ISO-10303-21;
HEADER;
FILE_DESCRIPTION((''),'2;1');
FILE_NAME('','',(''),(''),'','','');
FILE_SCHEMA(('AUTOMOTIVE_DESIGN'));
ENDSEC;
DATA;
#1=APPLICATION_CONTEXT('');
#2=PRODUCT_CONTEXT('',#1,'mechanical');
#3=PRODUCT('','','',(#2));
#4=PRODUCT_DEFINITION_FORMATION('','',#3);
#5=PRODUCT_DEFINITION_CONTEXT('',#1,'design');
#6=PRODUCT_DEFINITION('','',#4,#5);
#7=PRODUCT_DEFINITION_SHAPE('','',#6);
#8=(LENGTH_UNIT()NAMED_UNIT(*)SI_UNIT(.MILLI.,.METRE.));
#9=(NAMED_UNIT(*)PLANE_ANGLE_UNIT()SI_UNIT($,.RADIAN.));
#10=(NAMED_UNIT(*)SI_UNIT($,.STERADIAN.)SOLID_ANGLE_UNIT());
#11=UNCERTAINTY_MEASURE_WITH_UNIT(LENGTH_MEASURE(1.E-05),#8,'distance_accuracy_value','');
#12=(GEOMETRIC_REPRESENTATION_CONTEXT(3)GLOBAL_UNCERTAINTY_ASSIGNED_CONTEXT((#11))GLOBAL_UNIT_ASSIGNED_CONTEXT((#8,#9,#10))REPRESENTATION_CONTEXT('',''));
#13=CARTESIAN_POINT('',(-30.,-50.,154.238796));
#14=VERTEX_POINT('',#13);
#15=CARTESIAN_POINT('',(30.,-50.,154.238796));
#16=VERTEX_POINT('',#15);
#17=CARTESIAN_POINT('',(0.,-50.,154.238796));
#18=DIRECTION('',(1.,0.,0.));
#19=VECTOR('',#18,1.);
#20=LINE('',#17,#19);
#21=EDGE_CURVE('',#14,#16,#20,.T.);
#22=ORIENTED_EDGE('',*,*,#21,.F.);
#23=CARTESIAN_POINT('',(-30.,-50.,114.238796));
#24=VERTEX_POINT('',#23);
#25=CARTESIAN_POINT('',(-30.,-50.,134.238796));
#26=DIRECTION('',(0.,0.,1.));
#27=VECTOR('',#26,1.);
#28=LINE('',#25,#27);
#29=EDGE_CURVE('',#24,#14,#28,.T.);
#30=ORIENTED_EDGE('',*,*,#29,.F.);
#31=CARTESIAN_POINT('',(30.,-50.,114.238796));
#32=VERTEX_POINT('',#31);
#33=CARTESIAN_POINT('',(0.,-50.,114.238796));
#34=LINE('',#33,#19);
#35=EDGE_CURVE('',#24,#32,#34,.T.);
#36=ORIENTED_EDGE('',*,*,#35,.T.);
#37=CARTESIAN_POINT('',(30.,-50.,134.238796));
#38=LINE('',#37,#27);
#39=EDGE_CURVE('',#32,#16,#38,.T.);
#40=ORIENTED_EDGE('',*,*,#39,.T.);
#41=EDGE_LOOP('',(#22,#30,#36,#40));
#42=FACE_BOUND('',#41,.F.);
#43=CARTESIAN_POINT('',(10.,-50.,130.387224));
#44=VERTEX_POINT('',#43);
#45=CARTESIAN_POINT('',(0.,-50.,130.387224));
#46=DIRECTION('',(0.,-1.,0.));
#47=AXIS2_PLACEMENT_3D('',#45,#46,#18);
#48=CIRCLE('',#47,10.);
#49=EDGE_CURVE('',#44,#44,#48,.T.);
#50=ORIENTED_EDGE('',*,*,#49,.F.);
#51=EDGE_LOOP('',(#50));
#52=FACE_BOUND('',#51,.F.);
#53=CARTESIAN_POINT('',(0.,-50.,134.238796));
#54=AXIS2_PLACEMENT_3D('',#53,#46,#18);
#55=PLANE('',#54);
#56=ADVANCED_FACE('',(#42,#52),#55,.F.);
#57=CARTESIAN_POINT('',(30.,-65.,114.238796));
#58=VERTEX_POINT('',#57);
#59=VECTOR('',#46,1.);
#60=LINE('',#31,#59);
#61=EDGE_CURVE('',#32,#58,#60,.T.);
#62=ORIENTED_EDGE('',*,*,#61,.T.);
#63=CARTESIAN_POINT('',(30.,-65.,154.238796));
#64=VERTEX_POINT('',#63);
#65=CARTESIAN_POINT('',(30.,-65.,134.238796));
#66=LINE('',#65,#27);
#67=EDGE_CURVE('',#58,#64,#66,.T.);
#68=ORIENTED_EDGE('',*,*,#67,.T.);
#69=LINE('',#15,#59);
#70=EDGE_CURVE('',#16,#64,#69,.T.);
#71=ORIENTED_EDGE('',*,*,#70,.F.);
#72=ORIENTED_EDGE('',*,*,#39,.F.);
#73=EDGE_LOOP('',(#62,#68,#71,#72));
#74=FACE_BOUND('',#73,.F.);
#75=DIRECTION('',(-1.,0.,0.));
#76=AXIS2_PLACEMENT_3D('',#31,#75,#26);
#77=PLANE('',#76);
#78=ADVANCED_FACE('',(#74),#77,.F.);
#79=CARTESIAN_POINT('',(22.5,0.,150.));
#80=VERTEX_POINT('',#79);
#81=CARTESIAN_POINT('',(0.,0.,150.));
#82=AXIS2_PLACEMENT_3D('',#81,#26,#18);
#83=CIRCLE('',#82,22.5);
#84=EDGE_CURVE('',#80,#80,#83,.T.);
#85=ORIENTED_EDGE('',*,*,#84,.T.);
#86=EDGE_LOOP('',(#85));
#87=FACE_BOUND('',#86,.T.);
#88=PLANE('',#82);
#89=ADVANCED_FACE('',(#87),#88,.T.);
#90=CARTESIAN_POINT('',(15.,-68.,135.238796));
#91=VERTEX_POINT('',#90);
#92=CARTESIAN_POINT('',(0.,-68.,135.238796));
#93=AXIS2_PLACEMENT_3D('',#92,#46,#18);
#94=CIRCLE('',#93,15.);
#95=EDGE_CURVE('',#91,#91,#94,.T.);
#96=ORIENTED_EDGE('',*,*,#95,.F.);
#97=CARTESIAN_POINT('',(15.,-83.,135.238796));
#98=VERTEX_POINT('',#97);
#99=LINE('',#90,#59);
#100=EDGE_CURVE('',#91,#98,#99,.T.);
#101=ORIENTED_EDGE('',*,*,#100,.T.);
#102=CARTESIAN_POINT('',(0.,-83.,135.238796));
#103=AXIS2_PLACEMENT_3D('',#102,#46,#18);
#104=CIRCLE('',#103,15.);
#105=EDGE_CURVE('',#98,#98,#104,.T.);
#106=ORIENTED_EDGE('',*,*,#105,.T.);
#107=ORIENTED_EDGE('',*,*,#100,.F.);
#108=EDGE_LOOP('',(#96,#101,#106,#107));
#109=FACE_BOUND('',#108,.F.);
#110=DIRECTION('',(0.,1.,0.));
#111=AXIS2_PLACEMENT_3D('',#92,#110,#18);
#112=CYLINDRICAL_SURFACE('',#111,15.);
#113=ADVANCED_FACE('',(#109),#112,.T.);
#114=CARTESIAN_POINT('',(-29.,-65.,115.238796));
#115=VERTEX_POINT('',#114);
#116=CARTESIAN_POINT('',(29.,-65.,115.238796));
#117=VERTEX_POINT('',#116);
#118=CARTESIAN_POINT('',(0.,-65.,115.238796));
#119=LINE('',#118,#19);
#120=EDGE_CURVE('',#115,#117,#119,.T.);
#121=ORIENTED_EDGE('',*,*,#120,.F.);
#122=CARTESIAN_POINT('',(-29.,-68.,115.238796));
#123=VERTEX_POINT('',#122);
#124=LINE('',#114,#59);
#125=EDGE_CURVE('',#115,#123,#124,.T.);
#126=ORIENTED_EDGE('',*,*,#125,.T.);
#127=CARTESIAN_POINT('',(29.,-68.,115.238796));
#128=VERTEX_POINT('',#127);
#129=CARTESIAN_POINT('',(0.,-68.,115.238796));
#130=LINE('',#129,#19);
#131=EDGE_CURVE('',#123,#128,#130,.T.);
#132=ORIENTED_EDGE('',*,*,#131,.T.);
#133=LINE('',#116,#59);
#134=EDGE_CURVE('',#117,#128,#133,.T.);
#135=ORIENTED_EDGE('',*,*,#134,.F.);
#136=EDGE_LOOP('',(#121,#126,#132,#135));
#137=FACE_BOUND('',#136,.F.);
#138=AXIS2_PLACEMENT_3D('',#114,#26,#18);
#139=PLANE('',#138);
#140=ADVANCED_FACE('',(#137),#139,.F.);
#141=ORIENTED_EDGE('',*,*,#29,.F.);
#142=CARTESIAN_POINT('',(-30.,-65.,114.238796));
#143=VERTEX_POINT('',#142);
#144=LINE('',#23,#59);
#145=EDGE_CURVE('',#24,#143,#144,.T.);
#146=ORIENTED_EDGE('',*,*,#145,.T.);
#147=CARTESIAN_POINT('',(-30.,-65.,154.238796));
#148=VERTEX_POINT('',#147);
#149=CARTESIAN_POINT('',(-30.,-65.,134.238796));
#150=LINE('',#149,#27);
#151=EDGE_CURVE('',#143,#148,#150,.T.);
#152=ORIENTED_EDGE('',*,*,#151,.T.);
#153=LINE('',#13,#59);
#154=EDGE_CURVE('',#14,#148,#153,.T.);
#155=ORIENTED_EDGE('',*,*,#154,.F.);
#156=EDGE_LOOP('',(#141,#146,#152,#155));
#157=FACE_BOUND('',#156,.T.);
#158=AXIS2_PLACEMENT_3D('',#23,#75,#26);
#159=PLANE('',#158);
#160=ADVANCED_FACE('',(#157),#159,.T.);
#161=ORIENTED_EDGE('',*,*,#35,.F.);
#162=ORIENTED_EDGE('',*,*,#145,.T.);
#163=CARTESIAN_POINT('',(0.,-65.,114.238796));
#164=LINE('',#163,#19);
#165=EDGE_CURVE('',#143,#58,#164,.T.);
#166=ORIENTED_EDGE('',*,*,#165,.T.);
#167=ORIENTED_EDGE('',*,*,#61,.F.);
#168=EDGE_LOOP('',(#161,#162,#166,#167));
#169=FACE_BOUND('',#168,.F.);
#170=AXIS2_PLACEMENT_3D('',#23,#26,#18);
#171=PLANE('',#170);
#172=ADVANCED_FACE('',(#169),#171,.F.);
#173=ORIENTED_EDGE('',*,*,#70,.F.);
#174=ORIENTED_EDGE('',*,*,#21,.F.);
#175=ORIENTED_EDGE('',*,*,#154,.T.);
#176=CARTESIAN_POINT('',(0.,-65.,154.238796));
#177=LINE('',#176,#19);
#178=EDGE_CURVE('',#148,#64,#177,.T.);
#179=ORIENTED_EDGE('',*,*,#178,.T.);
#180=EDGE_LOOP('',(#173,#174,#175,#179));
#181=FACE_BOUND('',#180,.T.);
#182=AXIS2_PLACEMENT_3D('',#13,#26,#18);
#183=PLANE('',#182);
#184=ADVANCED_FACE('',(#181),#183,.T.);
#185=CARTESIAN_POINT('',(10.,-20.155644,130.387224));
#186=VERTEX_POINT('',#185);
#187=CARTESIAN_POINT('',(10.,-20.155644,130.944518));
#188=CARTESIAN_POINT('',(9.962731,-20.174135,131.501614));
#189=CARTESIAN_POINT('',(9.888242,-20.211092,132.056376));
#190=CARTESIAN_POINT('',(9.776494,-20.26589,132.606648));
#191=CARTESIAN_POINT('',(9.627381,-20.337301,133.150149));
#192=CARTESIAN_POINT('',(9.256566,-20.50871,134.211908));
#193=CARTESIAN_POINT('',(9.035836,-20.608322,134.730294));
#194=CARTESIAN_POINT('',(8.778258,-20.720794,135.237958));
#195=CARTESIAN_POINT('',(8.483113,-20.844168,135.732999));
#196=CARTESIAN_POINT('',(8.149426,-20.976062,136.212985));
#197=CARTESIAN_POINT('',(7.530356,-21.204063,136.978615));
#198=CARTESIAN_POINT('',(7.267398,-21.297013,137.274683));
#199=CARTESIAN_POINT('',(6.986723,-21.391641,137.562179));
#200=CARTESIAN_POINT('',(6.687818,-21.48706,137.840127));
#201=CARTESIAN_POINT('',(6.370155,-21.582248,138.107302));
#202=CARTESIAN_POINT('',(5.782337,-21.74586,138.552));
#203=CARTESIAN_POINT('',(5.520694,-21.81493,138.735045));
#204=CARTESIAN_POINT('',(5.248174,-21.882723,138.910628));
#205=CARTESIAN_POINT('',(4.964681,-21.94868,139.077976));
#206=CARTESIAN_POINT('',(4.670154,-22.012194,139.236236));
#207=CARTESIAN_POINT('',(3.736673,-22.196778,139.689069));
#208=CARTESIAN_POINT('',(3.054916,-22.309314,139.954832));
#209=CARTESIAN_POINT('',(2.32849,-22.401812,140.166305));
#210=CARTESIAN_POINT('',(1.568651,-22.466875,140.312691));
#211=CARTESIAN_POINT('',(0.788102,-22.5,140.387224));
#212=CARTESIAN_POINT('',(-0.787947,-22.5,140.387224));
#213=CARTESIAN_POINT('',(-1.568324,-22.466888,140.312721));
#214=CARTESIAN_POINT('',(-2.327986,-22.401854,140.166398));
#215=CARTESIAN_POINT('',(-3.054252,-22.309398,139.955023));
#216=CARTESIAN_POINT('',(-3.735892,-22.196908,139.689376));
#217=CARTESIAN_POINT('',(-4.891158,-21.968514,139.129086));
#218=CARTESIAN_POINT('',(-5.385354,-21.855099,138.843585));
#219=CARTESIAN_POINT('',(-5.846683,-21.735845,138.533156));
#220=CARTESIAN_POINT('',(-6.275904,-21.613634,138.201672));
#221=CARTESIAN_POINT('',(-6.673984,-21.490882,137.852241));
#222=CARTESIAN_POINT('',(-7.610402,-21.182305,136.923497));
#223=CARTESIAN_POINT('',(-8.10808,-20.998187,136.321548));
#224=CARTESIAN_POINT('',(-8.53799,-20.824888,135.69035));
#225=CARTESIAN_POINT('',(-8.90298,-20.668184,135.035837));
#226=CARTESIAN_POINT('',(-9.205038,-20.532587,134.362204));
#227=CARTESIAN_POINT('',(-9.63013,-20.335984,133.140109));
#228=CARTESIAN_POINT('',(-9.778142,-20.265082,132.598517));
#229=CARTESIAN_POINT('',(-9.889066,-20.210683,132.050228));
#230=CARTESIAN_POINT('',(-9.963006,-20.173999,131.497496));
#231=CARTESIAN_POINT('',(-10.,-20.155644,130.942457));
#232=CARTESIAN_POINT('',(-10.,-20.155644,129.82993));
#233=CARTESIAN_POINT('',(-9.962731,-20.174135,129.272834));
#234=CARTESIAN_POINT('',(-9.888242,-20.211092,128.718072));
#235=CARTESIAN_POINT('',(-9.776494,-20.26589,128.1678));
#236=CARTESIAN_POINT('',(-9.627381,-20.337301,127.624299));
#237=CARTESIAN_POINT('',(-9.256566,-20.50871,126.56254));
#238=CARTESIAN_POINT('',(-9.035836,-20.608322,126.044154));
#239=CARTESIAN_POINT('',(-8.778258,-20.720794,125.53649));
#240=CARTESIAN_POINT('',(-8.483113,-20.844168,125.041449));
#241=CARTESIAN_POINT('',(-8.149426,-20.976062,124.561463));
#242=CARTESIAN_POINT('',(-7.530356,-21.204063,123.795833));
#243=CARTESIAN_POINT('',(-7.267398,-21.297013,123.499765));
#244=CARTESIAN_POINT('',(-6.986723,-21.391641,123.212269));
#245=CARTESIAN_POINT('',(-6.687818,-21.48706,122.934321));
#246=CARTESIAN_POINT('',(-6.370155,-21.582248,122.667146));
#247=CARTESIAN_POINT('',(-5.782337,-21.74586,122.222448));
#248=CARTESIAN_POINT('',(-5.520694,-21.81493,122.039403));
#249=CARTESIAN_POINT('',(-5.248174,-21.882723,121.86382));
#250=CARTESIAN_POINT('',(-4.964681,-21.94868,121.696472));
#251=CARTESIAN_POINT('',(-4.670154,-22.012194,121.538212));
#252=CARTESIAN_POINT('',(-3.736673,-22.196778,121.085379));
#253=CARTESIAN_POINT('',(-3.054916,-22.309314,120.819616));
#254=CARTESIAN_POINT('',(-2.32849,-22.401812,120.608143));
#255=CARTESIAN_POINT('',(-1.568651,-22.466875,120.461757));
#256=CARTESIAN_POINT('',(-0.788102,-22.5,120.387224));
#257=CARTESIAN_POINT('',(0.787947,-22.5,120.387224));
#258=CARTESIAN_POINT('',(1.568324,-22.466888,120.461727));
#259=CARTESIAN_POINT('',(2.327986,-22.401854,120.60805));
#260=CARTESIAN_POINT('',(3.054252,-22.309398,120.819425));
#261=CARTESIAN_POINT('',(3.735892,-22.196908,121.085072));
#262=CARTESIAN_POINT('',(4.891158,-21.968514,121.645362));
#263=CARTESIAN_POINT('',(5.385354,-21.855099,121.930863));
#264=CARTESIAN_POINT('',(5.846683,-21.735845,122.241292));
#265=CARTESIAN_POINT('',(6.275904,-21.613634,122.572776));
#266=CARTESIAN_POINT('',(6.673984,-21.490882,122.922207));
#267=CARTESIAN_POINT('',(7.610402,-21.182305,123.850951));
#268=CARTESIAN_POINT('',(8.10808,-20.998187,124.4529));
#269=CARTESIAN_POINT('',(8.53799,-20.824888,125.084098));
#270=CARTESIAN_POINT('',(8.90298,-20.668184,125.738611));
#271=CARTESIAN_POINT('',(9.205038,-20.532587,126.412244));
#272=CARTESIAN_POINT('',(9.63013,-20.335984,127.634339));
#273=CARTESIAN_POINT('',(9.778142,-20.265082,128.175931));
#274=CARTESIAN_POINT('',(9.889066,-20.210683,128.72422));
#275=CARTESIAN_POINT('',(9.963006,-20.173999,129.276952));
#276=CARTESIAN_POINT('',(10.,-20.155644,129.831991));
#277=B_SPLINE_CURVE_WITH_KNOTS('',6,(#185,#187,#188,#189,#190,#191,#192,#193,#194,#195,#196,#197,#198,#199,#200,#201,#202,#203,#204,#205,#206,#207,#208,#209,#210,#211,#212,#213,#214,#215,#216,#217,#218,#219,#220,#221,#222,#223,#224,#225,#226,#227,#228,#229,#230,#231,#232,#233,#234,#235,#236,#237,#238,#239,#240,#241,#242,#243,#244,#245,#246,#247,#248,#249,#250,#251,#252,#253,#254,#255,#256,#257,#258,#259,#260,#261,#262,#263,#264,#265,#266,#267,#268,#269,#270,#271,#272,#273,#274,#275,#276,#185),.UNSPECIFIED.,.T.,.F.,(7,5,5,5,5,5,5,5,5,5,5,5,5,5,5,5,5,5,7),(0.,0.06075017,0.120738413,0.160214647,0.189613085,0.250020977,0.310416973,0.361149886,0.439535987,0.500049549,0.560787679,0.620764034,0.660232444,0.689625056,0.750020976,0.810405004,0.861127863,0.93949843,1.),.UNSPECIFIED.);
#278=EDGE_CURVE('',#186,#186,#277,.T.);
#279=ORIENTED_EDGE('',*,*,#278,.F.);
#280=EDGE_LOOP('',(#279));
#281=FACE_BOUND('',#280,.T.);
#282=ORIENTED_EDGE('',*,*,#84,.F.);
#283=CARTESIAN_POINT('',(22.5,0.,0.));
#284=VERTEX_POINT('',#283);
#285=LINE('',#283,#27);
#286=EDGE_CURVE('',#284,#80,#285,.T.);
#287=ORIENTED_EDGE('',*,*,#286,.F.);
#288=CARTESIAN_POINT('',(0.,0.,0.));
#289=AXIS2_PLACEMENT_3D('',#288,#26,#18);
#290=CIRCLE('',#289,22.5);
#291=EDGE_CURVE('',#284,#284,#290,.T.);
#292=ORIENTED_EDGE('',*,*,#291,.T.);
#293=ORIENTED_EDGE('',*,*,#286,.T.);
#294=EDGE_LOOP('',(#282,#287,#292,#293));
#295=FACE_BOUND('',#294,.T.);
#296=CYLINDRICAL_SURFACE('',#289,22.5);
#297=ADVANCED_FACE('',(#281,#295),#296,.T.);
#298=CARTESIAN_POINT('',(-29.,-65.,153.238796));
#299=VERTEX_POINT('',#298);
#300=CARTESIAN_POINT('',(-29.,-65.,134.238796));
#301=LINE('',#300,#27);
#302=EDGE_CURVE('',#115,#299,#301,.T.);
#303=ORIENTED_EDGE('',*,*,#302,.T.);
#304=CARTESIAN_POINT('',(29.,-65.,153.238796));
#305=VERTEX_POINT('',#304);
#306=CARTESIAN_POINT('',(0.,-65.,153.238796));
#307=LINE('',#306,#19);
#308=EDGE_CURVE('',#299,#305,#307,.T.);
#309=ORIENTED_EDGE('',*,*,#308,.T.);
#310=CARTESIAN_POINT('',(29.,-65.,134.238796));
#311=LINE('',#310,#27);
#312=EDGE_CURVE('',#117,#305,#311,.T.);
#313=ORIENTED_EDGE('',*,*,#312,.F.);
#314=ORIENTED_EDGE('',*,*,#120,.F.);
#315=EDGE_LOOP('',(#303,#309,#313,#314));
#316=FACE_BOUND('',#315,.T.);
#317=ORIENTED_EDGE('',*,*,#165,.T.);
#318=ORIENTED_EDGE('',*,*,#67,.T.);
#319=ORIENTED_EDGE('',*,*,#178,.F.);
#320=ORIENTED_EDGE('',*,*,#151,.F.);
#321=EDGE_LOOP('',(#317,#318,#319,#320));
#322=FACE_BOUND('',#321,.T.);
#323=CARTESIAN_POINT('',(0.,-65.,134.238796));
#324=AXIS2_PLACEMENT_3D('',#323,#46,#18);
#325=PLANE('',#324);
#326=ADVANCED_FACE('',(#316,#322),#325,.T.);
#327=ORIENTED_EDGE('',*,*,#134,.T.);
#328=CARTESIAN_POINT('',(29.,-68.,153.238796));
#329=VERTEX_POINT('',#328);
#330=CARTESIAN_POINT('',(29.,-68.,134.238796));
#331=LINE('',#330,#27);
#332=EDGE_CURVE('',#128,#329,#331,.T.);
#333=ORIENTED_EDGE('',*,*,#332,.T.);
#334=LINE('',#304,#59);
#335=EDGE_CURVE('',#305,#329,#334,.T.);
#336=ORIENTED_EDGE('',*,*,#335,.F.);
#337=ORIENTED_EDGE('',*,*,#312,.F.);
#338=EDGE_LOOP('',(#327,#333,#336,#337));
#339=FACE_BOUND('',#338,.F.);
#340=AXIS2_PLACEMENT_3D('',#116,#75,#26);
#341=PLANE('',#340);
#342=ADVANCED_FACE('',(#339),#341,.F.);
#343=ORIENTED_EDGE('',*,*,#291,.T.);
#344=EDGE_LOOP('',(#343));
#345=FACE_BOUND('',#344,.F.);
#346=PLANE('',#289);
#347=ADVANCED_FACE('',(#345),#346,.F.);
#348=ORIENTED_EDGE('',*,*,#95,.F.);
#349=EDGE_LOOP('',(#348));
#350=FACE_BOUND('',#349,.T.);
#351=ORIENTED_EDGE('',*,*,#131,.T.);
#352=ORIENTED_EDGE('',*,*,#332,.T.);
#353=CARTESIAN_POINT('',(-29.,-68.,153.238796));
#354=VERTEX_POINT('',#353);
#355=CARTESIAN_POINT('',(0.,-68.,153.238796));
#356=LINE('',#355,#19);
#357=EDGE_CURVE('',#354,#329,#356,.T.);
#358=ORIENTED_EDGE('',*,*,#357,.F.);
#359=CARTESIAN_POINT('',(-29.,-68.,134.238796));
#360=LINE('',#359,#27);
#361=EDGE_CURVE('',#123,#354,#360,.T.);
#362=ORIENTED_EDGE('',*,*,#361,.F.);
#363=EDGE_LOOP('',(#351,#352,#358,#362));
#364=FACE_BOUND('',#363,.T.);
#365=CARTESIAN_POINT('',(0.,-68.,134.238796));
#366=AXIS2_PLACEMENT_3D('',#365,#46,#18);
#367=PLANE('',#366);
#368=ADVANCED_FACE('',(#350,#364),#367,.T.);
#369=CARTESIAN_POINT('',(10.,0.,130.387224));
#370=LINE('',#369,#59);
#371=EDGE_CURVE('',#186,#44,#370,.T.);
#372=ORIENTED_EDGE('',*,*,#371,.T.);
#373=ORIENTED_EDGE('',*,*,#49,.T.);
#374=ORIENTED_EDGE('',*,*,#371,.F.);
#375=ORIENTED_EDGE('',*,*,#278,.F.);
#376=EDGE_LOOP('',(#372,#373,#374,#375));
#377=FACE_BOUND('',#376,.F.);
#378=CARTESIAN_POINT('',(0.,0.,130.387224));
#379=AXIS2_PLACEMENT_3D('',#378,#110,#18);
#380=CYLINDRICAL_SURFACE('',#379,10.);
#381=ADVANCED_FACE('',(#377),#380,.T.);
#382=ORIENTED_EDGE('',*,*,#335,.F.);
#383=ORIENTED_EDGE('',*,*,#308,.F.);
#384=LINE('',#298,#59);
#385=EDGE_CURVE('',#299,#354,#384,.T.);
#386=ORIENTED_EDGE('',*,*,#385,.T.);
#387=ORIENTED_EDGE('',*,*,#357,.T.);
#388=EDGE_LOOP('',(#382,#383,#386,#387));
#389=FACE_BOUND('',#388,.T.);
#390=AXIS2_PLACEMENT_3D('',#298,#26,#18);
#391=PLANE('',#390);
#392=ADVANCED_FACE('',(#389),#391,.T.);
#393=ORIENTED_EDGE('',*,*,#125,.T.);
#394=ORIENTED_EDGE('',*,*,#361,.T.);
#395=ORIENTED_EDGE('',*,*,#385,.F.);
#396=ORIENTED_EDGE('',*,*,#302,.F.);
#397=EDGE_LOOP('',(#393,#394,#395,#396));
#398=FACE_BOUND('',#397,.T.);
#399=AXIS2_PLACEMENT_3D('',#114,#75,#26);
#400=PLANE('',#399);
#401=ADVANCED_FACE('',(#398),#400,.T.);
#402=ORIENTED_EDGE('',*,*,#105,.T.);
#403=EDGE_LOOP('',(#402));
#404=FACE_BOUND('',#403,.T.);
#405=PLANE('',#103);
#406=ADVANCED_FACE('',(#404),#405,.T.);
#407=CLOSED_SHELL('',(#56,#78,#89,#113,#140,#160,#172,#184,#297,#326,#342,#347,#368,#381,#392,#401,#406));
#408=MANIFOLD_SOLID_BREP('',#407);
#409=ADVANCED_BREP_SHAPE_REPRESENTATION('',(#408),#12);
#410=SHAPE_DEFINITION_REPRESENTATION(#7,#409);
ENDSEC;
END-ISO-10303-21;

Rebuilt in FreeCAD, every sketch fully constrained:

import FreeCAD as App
import Part
import Sketcher

V = App.Vector
Q = App.Units.Quantity


def add_polygon(sketch, points):
    """Adds a closed chain of lines whose ends are joined by coincident constraints."""
    first, n = sketch.GeometryCount, len(points)
    for a, b in zip(points, points[1:] + points[:1]):
        sketch.addGeometry(Part.LineSegment(App.Vector(*a, 0), App.Vector(*b, 0)), False)
    for i in range(n):
        sketch.addConstraint(Sketcher.Constraint("Coincident", first + i, 2, first + (i + 1) % n, 1))

doc = App.newDocument("Part")
body = doc.addObject("PartDesign::Body", "Body")

sketch1 = body.newObject("Sketcher::SketchObject", "Sketch")
sketch1.AttachmentSupport = (doc.getObject("XZ_Plane"), [""])
sketch1.MapMode = "FlatFace"
sketch1.addGeometry(Part.Circle(V(0, 130, 0), V(0, 0, 1), 10), False)
sketch1.addConstraint(Sketcher.Constraint("PointOnObject", 0, 3, -2))
sketch1.addConstraint(Sketcher.Constraint("Diameter", 0, Q("20 mm")))
sketch1.addConstraint(Sketcher.Constraint("DistanceY", -1, 1, 0, 3, Q("130.387224 mm")))
pad1 = body.newObject("PartDesign::Pad", "Pad")
pad1.Profile = sketch1
pad1.Length = 50

sketch2 = body.newObject("Sketcher::SketchObject", "Sketch001")
sketch2.AttachmentSupport = (doc.getObject("XZ_Plane"), [""])
sketch2.MapMode = "FlatFace"
sketch2.AttachmentOffset = App.Placement(V(0, 0, 50), App.Rotation())
add_polygon(sketch2, [(-30, 154), (-30, 114), (30, 114), (30, 154)])
sketch2.addConstraint(Sketcher.Constraint("Vertical", 0))
sketch2.addConstraint(Sketcher.Constraint("Horizontal", 1))
sketch2.addConstraint(Sketcher.Constraint("Vertical", 2))
sketch2.addConstraint(Sketcher.Constraint("Horizontal", 3))
sketch2.addConstraint(Sketcher.Constraint("DistanceX", 1, 1, 1, 2, Q("60 mm")))
sketch2.addConstraint(Sketcher.Constraint("DistanceY", 0, 2, 0, 1, Q("40 mm")))
sketch2.addConstraint(Sketcher.Constraint("DistanceX", 0, 2, -1, 1, Q("30 mm")))
sketch2.addConstraint(Sketcher.Constraint("DistanceY", -1, 1, 0, 2, Q("114.238796 mm")))
pad2 = body.newObject("PartDesign::Pad", "Pad001")
pad2.Profile = sketch2
pad2.Length = 15

sketch3 = body.newObject("Sketcher::SketchObject", "Sketch002")
sketch3.AttachmentSupport = (doc.getObject("XY_Plane"), [""])
sketch3.MapMode = "FlatFace"
sketch3.addGeometry(Part.Circle(V(0, 0, 0), V(0, 0, 1), 22), False)
sketch3.addConstraint(Sketcher.Constraint("Coincident", 0, 3, -1, 1))
sketch3.addConstraint(Sketcher.Constraint("Diameter", 0, Q("45 mm")))

sketch4 = body.newObject("Sketcher::SketchObject", "Sketch003")
sketch4.AttachmentSupport = (doc.getObject("XZ_Plane"), [""])
sketch4.MapMode = "FlatFace"
sketch4.addGeometry(Part.LineSegment(V(0, 0, 0), V(0, 150, 0)), False)
sketch4.addConstraint(Sketcher.Constraint("Vertical", 0))
sketch4.addConstraint(Sketcher.Constraint("Coincident", 0, 1, -1, 1))
sketch4.addConstraint(Sketcher.Constraint("DistanceY", 0, 1, 0, 2, Q("150 mm")))
doc.recompute()

additivepipe = body.newObject("PartDesign::AdditivePipe", "AdditivePipe")
additivepipe.Profile = sketch3
additivepipe.Spine = (sketch4, ["Edge1"])

sketch5 = body.newObject("Sketcher::SketchObject", "Sketch004")
sketch5.AttachmentSupport = (doc.getObject("XZ_Plane"), [""])
sketch5.MapMode = "FlatFace"
sketch5.AttachmentOffset = App.Placement(V(0, 0, 65), App.Rotation())
add_polygon(sketch5, [(-29, 153), (-29, 115), (29, 115), (29, 153)])
sketch5.addConstraint(Sketcher.Constraint("Vertical", 0))
sketch5.addConstraint(Sketcher.Constraint("Horizontal", 1))
sketch5.addConstraint(Sketcher.Constraint("Vertical", 2))
sketch5.addConstraint(Sketcher.Constraint("Horizontal", 3))
sketch5.addConstraint(Sketcher.Constraint("DistanceX", 1, 1, 1, 2, Q("58 mm")))
sketch5.addConstraint(Sketcher.Constraint("DistanceY", 0, 2, 0, 1, Q("38 mm")))
sketch5.addConstraint(Sketcher.Constraint("DistanceX", 0, 2, -1, 1, Q("29 mm")))
sketch5.addConstraint(Sketcher.Constraint("DistanceY", -1, 1, 0, 2, Q("115.238796 mm")))
pad3 = body.newObject("PartDesign::Pad", "Pad002")
pad3.Profile = sketch5
pad3.Length = 3

sketch6 = body.newObject("Sketcher::SketchObject", "Sketch005")
sketch6.AttachmentSupport = (doc.getObject("XZ_Plane"), [""])
sketch6.MapMode = "FlatFace"
sketch6.AttachmentOffset = App.Placement(V(0, 0, 68), App.Rotation())
sketch6.addGeometry(Part.Circle(V(0, 135, 0), V(0, 0, 1), 15), False)
sketch6.addConstraint(Sketcher.Constraint("PointOnObject", 0, 3, -2))
sketch6.addConstraint(Sketcher.Constraint("Diameter", 0, Q("30 mm")))
sketch6.addConstraint(Sketcher.Constraint("DistanceY", -1, 1, 0, 3, Q("135.238796 mm")))
pad4 = body.newObject("PartDesign::Pad", "Pad003")
pad4.Profile = sketch6
pad4.Length = 15

doc.recompute()
